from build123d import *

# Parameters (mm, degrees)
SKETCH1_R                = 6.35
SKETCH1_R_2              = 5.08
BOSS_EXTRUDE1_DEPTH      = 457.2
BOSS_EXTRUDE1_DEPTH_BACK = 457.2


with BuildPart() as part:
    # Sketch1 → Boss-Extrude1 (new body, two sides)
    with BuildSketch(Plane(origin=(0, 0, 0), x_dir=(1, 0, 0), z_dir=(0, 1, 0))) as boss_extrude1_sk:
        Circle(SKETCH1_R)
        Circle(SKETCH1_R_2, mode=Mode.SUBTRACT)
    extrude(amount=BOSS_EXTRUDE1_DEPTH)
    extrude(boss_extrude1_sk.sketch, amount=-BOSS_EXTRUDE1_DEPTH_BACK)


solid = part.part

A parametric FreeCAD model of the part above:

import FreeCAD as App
import Part
import Sketcher
Q = App.Units.Quantity

doc = App.newDocument("Part")
body = doc.addObject("PartDesign::Body", "Body")

sketch1 = body.newObject("Sketcher::SketchObject", "Sketch")
sketch1.AttachmentSupport = (doc.getObject("XZ_Plane"), [""])
sketch1.MapMode = "FlatFace"
sketch1.addGeometry(Part.Circle(App.Vector(0, 0, 0), App.Vector(0, 0, 1), 6), False)
sketch1.addGeometry(Part.Circle(App.Vector(0, 0, 0), App.Vector(0, 0, 1), 5), False)
sketch1.addConstraint(Sketcher.Constraint("Coincident", 0, 3, -1, 1))
sketch1.addConstraint(Sketcher.Constraint("Coincident", 1, 3, -1, 1))
sketch1.addConstraint(Sketcher.Constraint("Diameter", 0, Q("0.5 in")))
sketch1.addConstraint(Sketcher.Constraint("Diameter", 1, Q("0.4 in")))
pad1 = body.newObject("PartDesign::Pad", "Pad")
pad1.Profile = sketch1
pad1.Type = "TwoLengths"
pad1.Length = Q("18 in")
pad1.Length2 = Q("18 in")
pad1.Reversed = True

doc.recompute()
